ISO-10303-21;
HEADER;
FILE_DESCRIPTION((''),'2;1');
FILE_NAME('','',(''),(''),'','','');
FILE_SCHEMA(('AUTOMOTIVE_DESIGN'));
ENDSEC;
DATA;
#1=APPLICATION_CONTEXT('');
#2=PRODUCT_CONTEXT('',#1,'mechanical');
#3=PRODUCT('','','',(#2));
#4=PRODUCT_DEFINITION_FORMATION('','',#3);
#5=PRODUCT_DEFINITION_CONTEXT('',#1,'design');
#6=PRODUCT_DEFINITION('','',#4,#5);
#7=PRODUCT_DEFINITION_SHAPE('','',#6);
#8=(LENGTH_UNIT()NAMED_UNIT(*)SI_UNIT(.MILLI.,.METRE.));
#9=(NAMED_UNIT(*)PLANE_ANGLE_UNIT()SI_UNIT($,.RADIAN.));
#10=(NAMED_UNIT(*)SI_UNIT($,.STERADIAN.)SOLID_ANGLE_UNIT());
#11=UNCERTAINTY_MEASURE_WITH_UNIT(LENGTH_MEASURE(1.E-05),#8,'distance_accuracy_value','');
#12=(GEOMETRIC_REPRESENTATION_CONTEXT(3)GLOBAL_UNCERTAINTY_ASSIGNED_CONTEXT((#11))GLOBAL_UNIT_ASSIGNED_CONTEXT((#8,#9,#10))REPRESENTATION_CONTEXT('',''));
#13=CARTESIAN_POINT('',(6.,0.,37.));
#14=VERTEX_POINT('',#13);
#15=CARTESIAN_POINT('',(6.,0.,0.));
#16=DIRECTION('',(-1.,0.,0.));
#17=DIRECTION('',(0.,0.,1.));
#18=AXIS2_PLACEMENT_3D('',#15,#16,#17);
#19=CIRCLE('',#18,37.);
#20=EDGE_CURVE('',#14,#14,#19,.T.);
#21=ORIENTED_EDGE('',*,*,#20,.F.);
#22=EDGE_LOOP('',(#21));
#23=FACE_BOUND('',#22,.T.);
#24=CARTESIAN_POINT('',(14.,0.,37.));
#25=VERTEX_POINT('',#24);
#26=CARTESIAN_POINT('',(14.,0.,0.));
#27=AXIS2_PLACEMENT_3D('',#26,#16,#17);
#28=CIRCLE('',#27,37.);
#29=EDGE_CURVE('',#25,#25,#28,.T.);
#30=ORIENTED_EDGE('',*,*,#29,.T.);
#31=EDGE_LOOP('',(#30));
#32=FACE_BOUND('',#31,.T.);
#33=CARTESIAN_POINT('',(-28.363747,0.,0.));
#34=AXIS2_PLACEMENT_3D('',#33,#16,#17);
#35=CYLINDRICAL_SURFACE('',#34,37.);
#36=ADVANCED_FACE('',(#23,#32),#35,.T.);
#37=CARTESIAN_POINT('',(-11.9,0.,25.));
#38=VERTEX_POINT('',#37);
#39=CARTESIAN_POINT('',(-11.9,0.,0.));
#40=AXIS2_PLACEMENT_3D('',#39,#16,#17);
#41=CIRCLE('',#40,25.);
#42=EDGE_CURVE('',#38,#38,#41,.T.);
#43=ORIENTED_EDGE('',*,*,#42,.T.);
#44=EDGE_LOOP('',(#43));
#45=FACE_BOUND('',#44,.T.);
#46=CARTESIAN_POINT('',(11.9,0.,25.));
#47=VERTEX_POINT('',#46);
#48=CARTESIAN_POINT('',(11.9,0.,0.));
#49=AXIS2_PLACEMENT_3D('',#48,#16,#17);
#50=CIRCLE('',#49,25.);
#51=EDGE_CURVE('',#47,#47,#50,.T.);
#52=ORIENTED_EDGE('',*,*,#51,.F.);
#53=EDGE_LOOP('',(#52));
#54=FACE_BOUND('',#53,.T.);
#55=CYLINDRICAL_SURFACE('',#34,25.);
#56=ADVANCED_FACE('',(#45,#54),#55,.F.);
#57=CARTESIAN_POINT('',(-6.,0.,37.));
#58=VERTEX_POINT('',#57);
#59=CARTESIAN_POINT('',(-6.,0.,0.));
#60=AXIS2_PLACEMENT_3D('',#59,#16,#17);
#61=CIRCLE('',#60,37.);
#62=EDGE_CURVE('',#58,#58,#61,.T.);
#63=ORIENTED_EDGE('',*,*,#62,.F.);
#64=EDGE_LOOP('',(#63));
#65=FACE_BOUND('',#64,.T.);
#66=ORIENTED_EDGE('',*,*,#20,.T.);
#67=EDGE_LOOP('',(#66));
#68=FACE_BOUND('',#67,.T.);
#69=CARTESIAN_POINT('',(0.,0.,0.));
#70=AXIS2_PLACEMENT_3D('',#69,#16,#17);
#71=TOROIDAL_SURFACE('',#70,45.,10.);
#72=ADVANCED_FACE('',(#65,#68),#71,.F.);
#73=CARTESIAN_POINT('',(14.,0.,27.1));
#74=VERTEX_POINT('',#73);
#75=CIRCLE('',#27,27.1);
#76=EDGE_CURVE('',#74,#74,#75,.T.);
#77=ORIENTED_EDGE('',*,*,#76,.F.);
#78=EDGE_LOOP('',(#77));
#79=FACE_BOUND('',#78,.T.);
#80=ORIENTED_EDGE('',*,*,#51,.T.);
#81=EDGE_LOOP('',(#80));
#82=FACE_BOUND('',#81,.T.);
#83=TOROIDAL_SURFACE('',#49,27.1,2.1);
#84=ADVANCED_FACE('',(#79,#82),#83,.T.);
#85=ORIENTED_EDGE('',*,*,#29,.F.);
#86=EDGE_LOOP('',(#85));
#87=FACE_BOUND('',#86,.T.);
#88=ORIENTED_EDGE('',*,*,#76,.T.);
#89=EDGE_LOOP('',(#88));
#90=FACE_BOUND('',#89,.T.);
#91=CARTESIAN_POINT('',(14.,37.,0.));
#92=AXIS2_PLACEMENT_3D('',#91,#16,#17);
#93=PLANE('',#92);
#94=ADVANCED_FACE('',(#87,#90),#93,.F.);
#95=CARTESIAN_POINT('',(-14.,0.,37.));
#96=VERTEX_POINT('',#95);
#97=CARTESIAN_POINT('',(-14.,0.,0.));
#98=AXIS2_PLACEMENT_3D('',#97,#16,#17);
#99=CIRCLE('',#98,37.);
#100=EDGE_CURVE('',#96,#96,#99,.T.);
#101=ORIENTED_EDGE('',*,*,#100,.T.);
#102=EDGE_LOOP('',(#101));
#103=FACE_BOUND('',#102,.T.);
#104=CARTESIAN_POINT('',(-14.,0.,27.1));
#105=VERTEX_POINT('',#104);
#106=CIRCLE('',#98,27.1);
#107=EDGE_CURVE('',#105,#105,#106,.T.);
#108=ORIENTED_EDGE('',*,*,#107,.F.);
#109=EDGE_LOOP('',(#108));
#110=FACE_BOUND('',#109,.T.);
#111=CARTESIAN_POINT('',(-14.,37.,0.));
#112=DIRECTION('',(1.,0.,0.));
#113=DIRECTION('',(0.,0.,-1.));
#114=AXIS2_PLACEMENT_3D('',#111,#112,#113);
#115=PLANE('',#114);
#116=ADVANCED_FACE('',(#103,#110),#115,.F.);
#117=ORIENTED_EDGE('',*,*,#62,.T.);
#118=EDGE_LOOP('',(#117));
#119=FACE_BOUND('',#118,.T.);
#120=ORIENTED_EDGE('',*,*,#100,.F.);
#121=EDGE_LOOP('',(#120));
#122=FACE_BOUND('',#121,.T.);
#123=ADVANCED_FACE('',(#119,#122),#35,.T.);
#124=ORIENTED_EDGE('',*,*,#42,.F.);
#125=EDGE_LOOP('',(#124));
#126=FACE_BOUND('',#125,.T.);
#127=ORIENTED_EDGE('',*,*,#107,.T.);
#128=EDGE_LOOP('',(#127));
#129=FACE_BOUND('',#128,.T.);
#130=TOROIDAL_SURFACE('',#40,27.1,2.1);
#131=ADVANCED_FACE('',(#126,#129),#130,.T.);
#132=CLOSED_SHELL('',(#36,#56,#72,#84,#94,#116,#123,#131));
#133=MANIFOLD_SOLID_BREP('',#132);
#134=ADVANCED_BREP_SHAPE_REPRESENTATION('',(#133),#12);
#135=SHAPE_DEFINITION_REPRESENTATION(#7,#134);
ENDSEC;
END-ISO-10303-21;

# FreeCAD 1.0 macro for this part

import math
import FreeCAD as App
import Part
import Sketcher

V = App.Vector

doc = App.newDocument("Part")
body = doc.addObject("PartDesign::Body", "Body")

sketch1 = body.newObject("Sketcher::SketchObject", "Sketch")
sketch1.AttachmentSupport = (doc.getObject("XY_Plane"), [""])
sketch1.MapMode = "FlatFace"
sketch1.addGeometry(Part.LineSegment(V(-6, 37, 0), V(-14, 37, 0)), False)
sketch1.addGeometry(Part.LineSegment(V(-14, 37, 0), V(-14, 27.1, 0)), False)
sketch1.addGeometry(Part.ArcOfCircle(Part.Circle(V(-11.9, 27.1, 0), V(0, 0, 1), 2.1), math.radians(-180), math.radians(-90)), False)
sketch1.addGeometry(Part.LineSegment(V(-11.9, 25, 0), V(11.9, 25, 0)), False)
sketch1.addGeometry(Part.ArcOfCircle(Part.Circle(V(11.9, 27.1, 0), V(0, 0, 1), 2.1), math.radians(-90), math.radians(0)), False)
sketch1.addGeometry(Part.LineSegment(V(14, 27.1, 0), V(14, 37, 0)), False)
sketch1.addGeometry(Part.LineSegment(V(14, 37, 0), V(6, 37, 0)), False)
sketch1.addGeometry(Part.ArcOfCircle(Part.Circle(V(0, 45, 0), V(0, 0, 1), 10), math.radians(-127), math.radians(-53)), False)
sketch1.addConstraint(Sketcher.Constraint("Coincident", 0, 2, 1, 1))
sketch1.addConstraint(Sketcher.Constraint("Tangent", 1, 2, 2, 1))
sketch1.addConstraint(Sketcher.Constraint("Tangent", 2, 2, 3, 1))
sketch1.addConstraint(Sketcher.Constraint("Tangent", 3, 2, 4, 1))
sketch1.addConstraint(Sketcher.Constraint("Tangent", 4, 2, 5, 1))
sketch1.addConstraint(Sketcher.Constraint("Coincident", 5, 2, 6, 1))
sketch1.addConstraint(Sketcher.Constraint("Coincident", 6, 2, 7, 2))
sketch1.addConstraint(Sketcher.Constraint("Coincident", 7, 1, 0, 1))
sketch1.addConstraint(Sketcher.Constraint("Horizontal", 0))
sketch1.addConstraint(Sketcher.Constraint("Vertical", 1))
sketch1.addConstraint(Sketcher.Constraint("Horizontal", 3))
sketch1.addConstraint(Sketcher.Constraint("Vertical", 5))
sketch1.addConstraint(Sketcher.Constraint("Horizontal", 6))
sketch1.addConstraint(Sketcher.Constraint("Equal", 2, 4))
sketch1.addConstraint(Sketcher.Constraint("Symmetric", 0, 2, 5, 2, -2))
sketch1.addConstraint(Sketcher.Constraint("PointOnObject", 7, 3, -2))
sketch1.addConstraint(Sketcher.Constraint("Radius", 7, 10.0))
sketch1.addConstraint(Sketcher.Constraint("Radius", 2, 2.1))
sketch1.addConstraint(Sketcher.Constraint("DistanceX", 0, 2, 0, 1, 8.0))
sketch1.addConstraint(Sketcher.Constraint("DistanceX", 3, 1, 3, 2, 23.8))
sketch1.addConstraint(Sketcher.Constraint("DistanceY", 1, 2, 1, 1, 9.9))
sketch1.addConstraint(Sketcher.Constraint("DistanceY", -1, 1, 7, 3, 45.0))
revolution = body.newObject("PartDesign::Revolution", "Revolution")
revolution.Profile = sketch1
revolution.ReferenceAxis = (sketch1, ["H_Axis"])
revolution.Angle = 360

doc.recompute()
